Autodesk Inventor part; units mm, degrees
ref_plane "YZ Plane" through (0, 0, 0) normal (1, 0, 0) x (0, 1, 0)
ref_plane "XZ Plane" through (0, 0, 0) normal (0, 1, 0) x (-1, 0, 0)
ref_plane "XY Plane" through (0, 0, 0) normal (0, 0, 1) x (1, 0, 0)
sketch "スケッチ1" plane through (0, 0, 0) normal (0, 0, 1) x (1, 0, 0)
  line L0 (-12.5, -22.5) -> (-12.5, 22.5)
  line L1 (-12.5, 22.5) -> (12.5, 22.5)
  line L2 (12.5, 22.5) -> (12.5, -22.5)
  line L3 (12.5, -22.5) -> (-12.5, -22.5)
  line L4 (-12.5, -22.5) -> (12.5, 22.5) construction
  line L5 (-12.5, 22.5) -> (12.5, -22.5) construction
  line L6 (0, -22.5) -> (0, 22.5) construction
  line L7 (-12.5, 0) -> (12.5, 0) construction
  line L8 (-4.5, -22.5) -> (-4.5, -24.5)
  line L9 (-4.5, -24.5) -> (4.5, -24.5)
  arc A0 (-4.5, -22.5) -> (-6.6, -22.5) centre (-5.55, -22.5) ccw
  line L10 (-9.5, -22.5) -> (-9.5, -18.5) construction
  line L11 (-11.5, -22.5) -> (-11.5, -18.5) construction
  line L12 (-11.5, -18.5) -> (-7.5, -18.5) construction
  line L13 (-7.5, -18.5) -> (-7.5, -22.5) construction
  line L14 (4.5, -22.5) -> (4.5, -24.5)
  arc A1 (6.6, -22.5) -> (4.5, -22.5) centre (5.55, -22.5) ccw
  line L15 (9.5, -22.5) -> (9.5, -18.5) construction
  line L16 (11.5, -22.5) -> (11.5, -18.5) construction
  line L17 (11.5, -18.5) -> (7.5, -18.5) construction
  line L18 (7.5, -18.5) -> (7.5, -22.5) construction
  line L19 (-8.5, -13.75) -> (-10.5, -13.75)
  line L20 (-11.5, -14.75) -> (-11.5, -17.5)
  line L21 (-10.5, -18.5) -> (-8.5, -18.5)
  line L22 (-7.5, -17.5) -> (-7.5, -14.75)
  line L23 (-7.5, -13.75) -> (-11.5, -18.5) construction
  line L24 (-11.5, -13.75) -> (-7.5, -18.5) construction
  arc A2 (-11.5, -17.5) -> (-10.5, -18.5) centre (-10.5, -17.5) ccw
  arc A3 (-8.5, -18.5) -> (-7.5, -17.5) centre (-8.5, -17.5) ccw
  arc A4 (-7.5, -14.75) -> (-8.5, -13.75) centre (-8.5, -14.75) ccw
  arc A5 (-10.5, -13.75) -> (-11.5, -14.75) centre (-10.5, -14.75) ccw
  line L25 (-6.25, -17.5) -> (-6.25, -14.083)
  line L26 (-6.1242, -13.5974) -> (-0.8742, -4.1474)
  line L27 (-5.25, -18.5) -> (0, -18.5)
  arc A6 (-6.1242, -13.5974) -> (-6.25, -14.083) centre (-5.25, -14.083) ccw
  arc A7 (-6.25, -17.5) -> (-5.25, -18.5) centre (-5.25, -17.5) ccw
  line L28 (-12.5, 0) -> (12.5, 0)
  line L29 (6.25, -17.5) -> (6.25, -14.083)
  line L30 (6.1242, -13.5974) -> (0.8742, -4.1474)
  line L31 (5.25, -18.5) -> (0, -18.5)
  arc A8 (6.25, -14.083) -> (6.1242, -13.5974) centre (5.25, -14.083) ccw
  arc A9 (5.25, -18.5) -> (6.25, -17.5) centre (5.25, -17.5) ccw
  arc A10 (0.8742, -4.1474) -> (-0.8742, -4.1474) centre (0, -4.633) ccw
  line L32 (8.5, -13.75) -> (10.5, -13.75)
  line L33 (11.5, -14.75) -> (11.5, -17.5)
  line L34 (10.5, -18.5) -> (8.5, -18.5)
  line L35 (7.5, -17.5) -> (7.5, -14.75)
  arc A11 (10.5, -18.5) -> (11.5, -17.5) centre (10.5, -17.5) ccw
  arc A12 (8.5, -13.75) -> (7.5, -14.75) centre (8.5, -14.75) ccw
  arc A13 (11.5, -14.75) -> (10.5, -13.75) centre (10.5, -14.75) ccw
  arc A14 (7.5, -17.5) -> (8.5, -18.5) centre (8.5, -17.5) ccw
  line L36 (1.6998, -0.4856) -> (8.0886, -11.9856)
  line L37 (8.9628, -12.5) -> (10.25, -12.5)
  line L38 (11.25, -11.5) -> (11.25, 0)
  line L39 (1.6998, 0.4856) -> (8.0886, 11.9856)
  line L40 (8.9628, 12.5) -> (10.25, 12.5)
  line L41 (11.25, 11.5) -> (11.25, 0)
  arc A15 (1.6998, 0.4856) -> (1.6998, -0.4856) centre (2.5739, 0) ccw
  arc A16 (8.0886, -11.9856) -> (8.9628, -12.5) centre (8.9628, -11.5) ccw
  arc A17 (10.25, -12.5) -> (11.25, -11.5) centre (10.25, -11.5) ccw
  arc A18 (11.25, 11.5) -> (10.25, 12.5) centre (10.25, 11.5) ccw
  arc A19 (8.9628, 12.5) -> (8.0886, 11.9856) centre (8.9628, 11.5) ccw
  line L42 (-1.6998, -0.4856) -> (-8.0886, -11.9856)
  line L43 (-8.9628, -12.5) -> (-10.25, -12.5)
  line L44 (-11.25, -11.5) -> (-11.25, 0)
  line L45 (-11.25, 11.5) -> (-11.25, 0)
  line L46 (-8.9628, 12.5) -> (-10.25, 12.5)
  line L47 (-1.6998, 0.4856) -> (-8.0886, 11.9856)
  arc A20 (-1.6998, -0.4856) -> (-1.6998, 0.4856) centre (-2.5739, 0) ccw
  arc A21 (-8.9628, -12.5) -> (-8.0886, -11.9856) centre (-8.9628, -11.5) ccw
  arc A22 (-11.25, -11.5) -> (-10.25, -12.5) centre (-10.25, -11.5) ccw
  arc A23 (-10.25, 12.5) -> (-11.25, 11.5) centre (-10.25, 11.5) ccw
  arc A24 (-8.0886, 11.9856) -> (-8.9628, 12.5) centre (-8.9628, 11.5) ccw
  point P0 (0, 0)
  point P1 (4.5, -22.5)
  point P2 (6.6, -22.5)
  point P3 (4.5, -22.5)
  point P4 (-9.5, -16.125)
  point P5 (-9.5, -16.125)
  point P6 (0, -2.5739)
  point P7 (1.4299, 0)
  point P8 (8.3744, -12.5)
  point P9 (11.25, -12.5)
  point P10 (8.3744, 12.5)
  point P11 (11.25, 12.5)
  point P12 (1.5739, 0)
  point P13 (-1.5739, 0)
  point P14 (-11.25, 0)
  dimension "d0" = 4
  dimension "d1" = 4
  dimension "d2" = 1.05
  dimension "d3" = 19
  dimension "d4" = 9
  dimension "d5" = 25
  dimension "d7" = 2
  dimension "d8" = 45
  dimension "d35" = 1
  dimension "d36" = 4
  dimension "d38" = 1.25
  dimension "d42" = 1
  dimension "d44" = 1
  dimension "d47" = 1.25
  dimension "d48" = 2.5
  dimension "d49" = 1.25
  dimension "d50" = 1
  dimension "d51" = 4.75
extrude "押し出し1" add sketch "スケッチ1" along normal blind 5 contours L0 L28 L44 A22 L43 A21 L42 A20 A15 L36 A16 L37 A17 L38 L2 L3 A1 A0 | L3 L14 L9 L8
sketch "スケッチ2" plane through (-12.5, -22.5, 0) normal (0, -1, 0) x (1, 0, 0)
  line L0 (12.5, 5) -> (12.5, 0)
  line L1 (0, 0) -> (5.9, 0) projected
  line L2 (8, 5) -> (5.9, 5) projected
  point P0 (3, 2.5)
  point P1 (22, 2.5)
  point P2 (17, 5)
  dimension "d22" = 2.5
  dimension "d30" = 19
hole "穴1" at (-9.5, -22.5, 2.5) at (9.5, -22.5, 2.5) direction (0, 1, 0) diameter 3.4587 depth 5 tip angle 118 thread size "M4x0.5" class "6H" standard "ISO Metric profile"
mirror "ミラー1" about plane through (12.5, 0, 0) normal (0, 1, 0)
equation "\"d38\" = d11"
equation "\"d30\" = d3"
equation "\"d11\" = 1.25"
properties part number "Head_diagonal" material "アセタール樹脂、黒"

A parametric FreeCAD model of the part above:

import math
import FreeCAD as App
import Part
import Sketcher
Q = App.Units.Quantity

doc = App.newDocument("Part")
body = doc.addObject("PartDesign::Body", "Body")

sketch1 = body.newObject("Sketcher::SketchObject", "Sketch")
sketch1.AttachmentSupport = (doc.getObject("XY_Plane"), [""])
sketch1.MapMode = "FlatFace"
sketch1.addGeometry([
    Part.LineSegment(App.Vector(-12.5, 0, 0), App.Vector(-12.5, -22.5, 0)),
    Part.LineSegment(App.Vector(-12.5, -22.5, 0), App.Vector(-6.6, -22.5, 0)),
    Part.ArcOfCircle(Part.Circle(App.Vector(-5.55, -22.5, 0), App.Vector(0, 0, 1), 1.05), math.radians(0), math.radians(180)),
    Part.LineSegment(App.Vector(-4.5, -22.5, 0), App.Vector(-4.5, -24.5, 0)),
    Part.LineSegment(App.Vector(-4.5, -24.5, 0), App.Vector(4.5, -24.5, 0)),
    Part.LineSegment(App.Vector(4.5, -24.5, 0), App.Vector(4.5, -22.5, 0)),
    Part.ArcOfCircle(Part.Circle(App.Vector(5.55, -22.5, 0), App.Vector(0, 0, 1), 1.05), math.radians(0), math.radians(180)),
    Part.LineSegment(App.Vector(6.6, -22.5, 0), App.Vector(12.5, -22.5, 0)),
    Part.LineSegment(App.Vector(12.5, -22.5, 0), App.Vector(12.5, 0, 0)),
    Part.LineSegment(App.Vector(12.5, 0, 0), App.Vector(11.25, 0, 0)),
    Part.LineSegment(App.Vector(11.25, 0, 0), App.Vector(11.25, -11.5, 0)),
    Part.ArcOfCircle(Part.Circle(App.Vector(10.25, -11.5, 0), App.Vector(0, 0, 1), 1), math.radians(-90), math.radians(0)),
    Part.LineSegment(App.Vector(10.25, -12.5, 0), App.Vector(8.9628, -12.5, 0)),
    Part.ArcOfCircle(Part.Circle(App.Vector(8.9628, -11.5, 0), App.Vector(0, 0, 1), 1.000016), math.radians(-150.948735), math.radians(-90)),
    Part.LineSegment(App.Vector(8.0886, -11.9856, 0), App.Vector(1.6998, -0.4856, 0)),
    Part.ArcOfCircle(Part.Circle(App.Vector(2.5739, 0, 0), App.Vector(0, 0, 1), 0.999929), math.radians(180), math.radians(209.054048)),
    Part.LineSegment(App.Vector(1.573971, 0, 0), App.Vector(-1.573971, 0, 0)),
    Part.ArcOfCircle(Part.Circle(App.Vector(-2.5739, 0, 0), App.Vector(0, 0, 1), 0.999929), math.radians(-29.054048), math.radians(0)),
    Part.LineSegment(App.Vector(-1.6998, -0.4856, 0), App.Vector(-8.0886, -11.9856, 0)),
    Part.ArcOfCircle(Part.Circle(App.Vector(-8.9628, -11.5, 0), App.Vector(0, 0, 1), 1), math.radians(-90), math.radians(-29.051265)),
    Part.LineSegment(App.Vector(-8.9628, -12.5, 0), App.Vector(-10.25, -12.5, 0)),
    Part.ArcOfCircle(Part.Circle(App.Vector(-10.25, -11.5, 0), App.Vector(0, 0, 1), 1), math.radians(180), math.radians(270)),
    Part.LineSegment(App.Vector(-11.25, -11.5, 0), App.Vector(-11.25, 0, 0)),
    Part.LineSegment(App.Vector(-11.25, 0, 0), App.Vector(-12.5, 0, 0)),
    Part.LineSegment(App.Vector(-10.5, -13.75, 0), App.Vector(-8.5, -13.75, 0)),
    Part.ArcOfCircle(Part.Circle(App.Vector(-8.5, -14.75, 0), App.Vector(0, 0, 1), 1), math.radians(0), math.radians(90)),
    Part.LineSegment(App.Vector(-7.5, -14.75, 0), App.Vector(-7.5, -17.5, 0)),
    Part.ArcOfCircle(Part.Circle(App.Vector(-8.5, -17.5, 0), App.Vector(0, 0, 1), 1), math.radians(-90), math.radians(0)),
    Part.LineSegment(App.Vector(-8.5, -18.5, 0), App.Vector(-10.5, -18.5, 0)),
    Part.ArcOfCircle(Part.Circle(App.Vector(-10.5, -17.5, 0), App.Vector(0, 0, 1), 1), math.radians(180), math.radians(270)),
    Part.LineSegment(App.Vector(-11.5, -17.5, 0), App.Vector(-11.5, -14.75, 0)),
    Part.ArcOfCircle(Part.Circle(App.Vector(-10.5, -14.75, 0), App.Vector(0, 0, 1), 1), math.radians(90), math.radians(180)),
    Part.ArcOfCircle(Part.Circle(App.Vector(-5.25, -17.5, 0), App.Vector(0, 0, 1), 1), math.radians(180), math.radians(270)),
    Part.LineSegment(App.Vector(-6.25, -17.5, 0), App.Vector(-6.25, -14.083, 0)),
    Part.ArcOfCircle(Part.Circle(App.Vector(-5.25, -14.083, 0), App.Vector(0, 0, 1), 1.000016), math.radians(150.948735), math.radians(180)),
    Part.LineSegment(App.Vector(-6.1242, -13.5974, 0), App.Vector(-0.8742, -4.1474, 0)),
    Part.ArcOfCircle(Part.Circle(App.Vector(0, -4.633, 0), App.Vector(0, 0, 1), 1.000016), math.radians(29.051265), math.radians(150.948735)),
    Part.LineSegment(App.Vector(0.8742, -4.1474, 0), App.Vector(6.1242, -13.5974, 0)),
    Part.ArcOfCircle(Part.Circle(App.Vector(5.25, -14.083, 0), App.Vector(0, 0, 1), 1), math.radians(0), math.radians(29.051265)),
    Part.LineSegment(App.Vector(6.25, -14.083, 0), App.Vector(6.25, -17.5, 0)),
    Part.ArcOfCircle(Part.Circle(App.Vector(5.25, -17.5, 0), App.Vector(0, 0, 1), 1), math.radians(-90), math.radians(0)),
    Part.LineSegment(App.Vector(5.25, -18.5, 0), App.Vector(-5.25, -18.5, 0)),
    Part.ArcOfCircle(Part.Circle(App.Vector(8.5, -14.75, 0), App.Vector(0, 0, 1), 1), math.radians(90), math.radians(180)),
    Part.LineSegment(App.Vector(8.5, -13.75, 0), App.Vector(10.5, -13.75, 0)),
    Part.ArcOfCircle(Part.Circle(App.Vector(10.5, -14.75, 0), App.Vector(0, 0, 1), 1), math.radians(0), math.radians(90)),
    Part.LineSegment(App.Vector(11.5, -14.75, 0), App.Vector(11.5, -17.5, 0)),
    Part.ArcOfCircle(Part.Circle(App.Vector(10.5, -17.5, 0), App.Vector(0, 0, 1), 1), math.radians(-90), math.radians(0)),
    Part.LineSegment(App.Vector(10.5, -18.5, 0), App.Vector(8.5, -18.5, 0)),
    Part.ArcOfCircle(Part.Circle(App.Vector(8.5, -17.5, 0), App.Vector(0, 0, 1), 1), math.radians(180), math.radians(270)),
    Part.LineSegment(App.Vector(7.5, -17.5, 0), App.Vector(7.5, -14.75, 0)),
], False)
sketch1.addConstraint([
    Sketcher.Constraint("Coincident", 0, 2, 1, 1),
    Sketcher.Constraint("Coincident", 1, 2, 2, 2),
    Sketcher.Constraint("Tangent", 2, 1, 3, 1),
    Sketcher.Constraint("Coincident", 3, 2, 4, 1),
    Sketcher.Constraint("Coincident", 4, 2, 5, 1),
    Sketcher.Constraint("Tangent", 5, 2, 6, 2),
    Sketcher.Constraint("Coincident", 6, 1, 7, 1),
    Sketcher.Constraint("Coincident", 7, 2, 8, 1),
    Sketcher.Constraint("Coincident", 8, 2, 9, 1),
    Sketcher.Constraint("Coincident", 9, 2, 10, 1),
    Sketcher.Constraint("Tangent", 10, 2, 11, 2),
    Sketcher.Constraint("Tangent", 11, 1, 12, 1),
    Sketcher.Constraint("Tangent", 12, 2, 13, 2),
    Sketcher.Constraint("Tangent", 13, 1, 14, 1),
    Sketcher.Constraint("Tangent", 14, 2, 15, 2),
    Sketcher.Constraint("Coincident", 15, 1, 16, 1),
    Sketcher.Constraint("Coincident", 16, 2, 17, 2),
    Sketcher.Constraint("Tangent", 17, 1, 18, 1),
    Sketcher.Constraint("Tangent", 18, 2, 19, 2),
    Sketcher.Constraint("Tangent", 19, 1, 20, 1),
    Sketcher.Constraint("Tangent", 20, 2, 21, 2),
    Sketcher.Constraint("Tangent", 21, 1, 22, 1),
    Sketcher.Constraint("Coincident", 22, 2, 23, 1),
    Sketcher.Constraint("Coincident", 23, 2, 0, 1),
    Sketcher.Constraint("Tangent", 24, 2, 25, 2),
    Sketcher.Constraint("Tangent", 25, 1, 26, 1),
    Sketcher.Constraint("Tangent", 26, 2, 27, 2),
    Sketcher.Constraint("Tangent", 27, 1, 28, 1),
    Sketcher.Constraint("Tangent", 28, 2, 29, 2),
    Sketcher.Constraint("Tangent", 29, 1, 30, 1),
    Sketcher.Constraint("Tangent", 30, 2, 31, 2),
    Sketcher.Constraint("Tangent", 31, 1, 24, 1),
    Sketcher.Constraint("Tangent", 32, 1, 33, 1),
    Sketcher.Constraint("Tangent", 33, 2, 34, 2),
    Sketcher.Constraint("Tangent", 34, 1, 35, 1),
    Sketcher.Constraint("Tangent", 35, 2, 36, 2),
    Sketcher.Constraint("Tangent", 36, 1, 37, 1),
    Sketcher.Constraint("Tangent", 37, 2, 38, 2),
    Sketcher.Constraint("Tangent", 38, 1, 39, 1),
    Sketcher.Constraint("Tangent", 39, 2, 40, 2),
    Sketcher.Constraint("Tangent", 40, 1, 41, 1),
    Sketcher.Constraint("Tangent", 41, 2, 32, 2),
    Sketcher.Constraint("Tangent", 42, 1, 43, 1),
    Sketcher.Constraint("Tangent", 43, 2, 44, 2),
    Sketcher.Constraint("Tangent", 44, 1, 45, 1),
    Sketcher.Constraint("Tangent", 45, 2, 46, 2),
    Sketcher.Constraint("Tangent", 46, 1, 47, 1),
    Sketcher.Constraint("Tangent", 47, 2, 48, 2),
    Sketcher.Constraint("Tangent", 48, 1, 49, 1),
    Sketcher.Constraint("Tangent", 49, 2, 42, 2),
    Sketcher.Constraint("Vertical", 0),
    Sketcher.Constraint("Horizontal", 1),
    Sketcher.Constraint("Vertical", 3),
    Sketcher.Constraint("Horizontal", 4),
    Sketcher.Constraint("Vertical", 5),
    Sketcher.Constraint("Horizontal", 7),
    Sketcher.Constraint("Vertical", 8),
    Sketcher.Constraint("Horizontal", 9),
    Sketcher.Constraint("Vertical", 10),
    Sketcher.Constraint("Horizontal", 12),
    Sketcher.Constraint("Horizontal", 16),
    Sketcher.Constraint("Horizontal", 20),
    Sketcher.Constraint("Vertical", 22),
    Sketcher.Constraint("Horizontal", 23),
    Sketcher.Constraint("Horizontal", 24),
    Sketcher.Constraint("Vertical", 26),
    Sketcher.Constraint("Horizontal", 28),
    Sketcher.Constraint("Vertical", 30),
    Sketcher.Constraint("Vertical", 33),
    Sketcher.Constraint("Vertical", 39),
    Sketcher.Constraint("Horizontal", 41),
    Sketcher.Constraint("Horizontal", 43),
    Sketcher.Constraint("Vertical", 45),
    Sketcher.Constraint("Horizontal", 47),
    Sketcher.Constraint("Vertical", 49),
    Sketcher.Constraint("Equal", 2, 6),
    Sketcher.Constraint("Equal", 11, 13),
    Sketcher.Constraint("Equal", 13, 15),
    Sketcher.Constraint("Equal", 15, 17),
    Sketcher.Constraint("Equal", 17, 19),
    Sketcher.Constraint("Equal", 19, 21),
    Sketcher.Constraint("Equal", 21, 25),
    Sketcher.Constraint("Equal", 25, 27),
    Sketcher.Constraint("Equal", 27, 29),
    Sketcher.Constraint("Equal", 29, 31),
    Sketcher.Constraint("Equal", 31, 32),
    Sketcher.Constraint("Equal", 32, 34),
    Sketcher.Constraint("Equal", 34, 36),
    Sketcher.Constraint("Equal", 36, 38),
    Sketcher.Constraint("Equal", 38, 40),
    Sketcher.Constraint("Equal", 40, 42),
    Sketcher.Constraint("Equal", 42, 44),
    Sketcher.Constraint("Equal", 44, 46),
    Sketcher.Constraint("Equal", 46, 48),
    Sketcher.Constraint("Symmetric", 15, 3, 17, 3, -1, 1),
    Sketcher.Constraint("Symmetric", 9, 2, 22, 2, -1, 1),
    Sketcher.Constraint("Symmetric", 2, 3, 6, 3, -2),
    Sketcher.Constraint("Symmetric", 13, 3, 19, 3, -2),
    Sketcher.Constraint("Symmetric", 34, 3, 38, 3, -2),
    Sketcher.Constraint("Symmetric", 25, 3, 42, 3, -2),
    Sketcher.Constraint("Symmetric", 29, 3, 46, 3, -2),
    Sketcher.Constraint("Symmetric", 0, 2, 7, 2, -2),
    Sketcher.Constraint("PointOnObject", 15, 3, -1),
    Sketcher.Constraint("PointOnObject", 36, 3, -2),
    Sketcher.Constraint("PointOnObject", 8, 2, -1),
    Sketcher.Constraint("PointOnObject", 15, 1, -1),
    Sketcher.Constraint("Parallel", 18, 35),
    Sketcher.Constraint("Horizontal", 29, 3, 32, 3),
    Sketcher.Constraint("Horizontal", 6, 3, 0, 2),
    Sketcher.Constraint("Equal", 47, 3),
    Sketcher.Constraint("Radius", 11, Q("1 mm")),
    Sketcher.Constraint("DistanceX", 4, 1, 4, 2, Q("9 mm")),
    Sketcher.Constraint("DistanceX", 24, 1, 24, 2, Q("2 mm")),
    Sketcher.Constraint("Radius", 2, Q("1.05 mm")),
    Sketcher.Constraint("DistanceX", 9, 2, 9, 1, Q("1.25 mm")),
    Sketcher.Constraint("DistanceX", 1, 1, 1, 2, Q("5.9 mm")),
    Sketcher.Constraint("DistanceX", 41, 2, 41, 1, Q("10.5 mm")),
    Sketcher.Constraint("DistanceY", 0, 2, 0, 1, Q("22.5 mm")),
    Sketcher.Constraint("DistanceY", 10, 2, 10, 1, Q("11.5 mm")),
    Sketcher.Constraint("DistanceY", 26, 2, 26, 1, Q("2.75 mm")),
    Sketcher.Constraint("DistanceX", 25, 3, -1, 1, Q("8.5 mm")),
    Sketcher.Constraint("DistanceY", 27, 3, -1, 1, Q("17.5 mm")),
    Sketcher.Constraint("DistanceX", 16, 2, 16, 1, Q("3.148 mm")),
    Sketcher.Constraint("DistanceY", 33, 1, 33, 2, Q("3.417 mm")),
    Sketcher.Constraint("DistanceX", 12, 2, 12, 1, Q("1.2872 mm")),
])
pad1 = body.newObject("PartDesign::Pad", "Pad")
pad1.Profile = sketch1
pad1.Length = 5

sketch2 = body.newObject("Sketcher::SketchObject", "Sketch001")
sketch2.AttachmentSupport = (doc.getObject("XZ_Plane"), [""])
sketch2.MapMode = "FlatFace"
sketch2.AttachmentOffset = App.Placement(App.Vector(0, 0, 22.5), App.Rotation())
sketch2.addGeometry([
    Part.Circle(App.Vector(-9.5, 2.5, 0), App.Vector(0, 0, 1), 1.72935),
    Part.Circle(App.Vector(9.5, 2.5, 0), App.Vector(0, 0, 1), 1.72935),
], False)
sketch2.addConstraint([
    Sketcher.Constraint("Equal", 0, 1),
    Sketcher.Constraint("Symmetric", 0, 3, 1, 3, -2),
    Sketcher.Constraint("DistanceX", 0, 3, 1, 3, Q("19 mm")),
    Sketcher.Constraint("Diameter", 0, Q("3.4587 mm")),
    Sketcher.Constraint("DistanceY", -1, 1, 0, 3, Q("2.5 mm")),
])
doc.recompute()
hole = body.newObject("PartDesign::Hole", "Hole")
hole.Profile = sketch2
hole.ThreadType = "None"
hole.Diameter = 3.4587
hole.DepthType = "Dimension"
hole.Depth = 5
hole.DrillPoint = "Angled"
hole.DrillPointAngle = 118
doc.recompute()

mirrored = body.newObject("PartDesign::Mirrored", "Mirrored")
mirrored.TransformMode = "Transform body"
mirrored.MirrorPlane = (doc.getObject("XZ_Plane"), [""])
body.Tip = mirrored

doc.recompute()
